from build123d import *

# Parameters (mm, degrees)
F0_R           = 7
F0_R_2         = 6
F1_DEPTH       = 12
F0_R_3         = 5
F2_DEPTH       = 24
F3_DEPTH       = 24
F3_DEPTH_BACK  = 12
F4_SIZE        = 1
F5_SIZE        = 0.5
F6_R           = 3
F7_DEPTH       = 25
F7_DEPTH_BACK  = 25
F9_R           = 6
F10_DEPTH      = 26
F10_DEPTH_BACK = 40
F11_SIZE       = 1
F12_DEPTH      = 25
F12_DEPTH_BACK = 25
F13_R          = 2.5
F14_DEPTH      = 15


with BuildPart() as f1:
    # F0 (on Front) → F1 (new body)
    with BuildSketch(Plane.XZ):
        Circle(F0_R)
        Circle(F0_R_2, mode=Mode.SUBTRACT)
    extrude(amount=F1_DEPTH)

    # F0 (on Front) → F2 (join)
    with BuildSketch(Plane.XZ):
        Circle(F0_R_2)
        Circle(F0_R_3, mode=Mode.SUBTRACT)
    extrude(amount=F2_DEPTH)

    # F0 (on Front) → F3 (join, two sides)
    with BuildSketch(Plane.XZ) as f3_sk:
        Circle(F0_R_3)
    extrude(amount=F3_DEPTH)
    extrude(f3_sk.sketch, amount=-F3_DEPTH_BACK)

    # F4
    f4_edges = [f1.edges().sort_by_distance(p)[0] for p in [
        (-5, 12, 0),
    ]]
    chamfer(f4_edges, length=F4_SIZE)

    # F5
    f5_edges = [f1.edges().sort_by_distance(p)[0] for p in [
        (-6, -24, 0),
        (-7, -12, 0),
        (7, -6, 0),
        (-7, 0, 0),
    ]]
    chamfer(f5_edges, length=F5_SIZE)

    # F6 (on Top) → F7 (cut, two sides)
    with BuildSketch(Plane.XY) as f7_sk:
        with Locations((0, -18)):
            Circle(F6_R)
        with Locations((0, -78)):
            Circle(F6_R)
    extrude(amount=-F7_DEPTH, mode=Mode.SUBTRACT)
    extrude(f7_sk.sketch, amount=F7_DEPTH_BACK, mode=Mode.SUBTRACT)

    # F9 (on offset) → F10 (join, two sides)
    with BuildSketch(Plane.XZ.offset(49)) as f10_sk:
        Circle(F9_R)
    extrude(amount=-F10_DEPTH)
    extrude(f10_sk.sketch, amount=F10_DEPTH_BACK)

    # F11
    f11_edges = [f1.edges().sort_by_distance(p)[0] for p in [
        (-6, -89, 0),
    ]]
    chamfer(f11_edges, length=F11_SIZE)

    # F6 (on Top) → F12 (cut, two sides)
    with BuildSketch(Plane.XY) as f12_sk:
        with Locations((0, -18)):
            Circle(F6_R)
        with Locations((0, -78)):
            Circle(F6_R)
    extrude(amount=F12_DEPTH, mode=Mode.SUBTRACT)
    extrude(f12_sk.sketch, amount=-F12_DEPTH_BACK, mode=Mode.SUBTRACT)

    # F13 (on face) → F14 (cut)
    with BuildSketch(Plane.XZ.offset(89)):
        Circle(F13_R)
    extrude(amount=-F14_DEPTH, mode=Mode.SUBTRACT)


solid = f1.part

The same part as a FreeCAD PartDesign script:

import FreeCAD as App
import Part
import Sketcher

V = App.Vector


def edges_at(feature, points):
    """Names of the edges that pass closest to the given points."""
    edges = feature.Shape.Edges
    near = lambda p: min(range(len(edges)), key=lambda i: edges[i].distToShape(Part.Vertex(*p))[0])
    return sorted({f"Edge{near(p) + 1}" for p in points})

doc = App.newDocument("Part")
params = doc.addObject("Spreadsheet::Sheet", "Params")
for row, (alias, value) in enumerate([
    ("sketch1_diameter", "14 mm"),
    ("sketch1_diameter2", "12 mm"),
    ("pad1_length", "12 mm"),
    ("sketch2_diameter", "12 mm"),
    ("sketch2_diameter2", "10 mm"),
    ("pad2_length", "24 mm"),
    ("sketch3_diameter", "10 mm"),
    ("pad3_length", "24 mm"),
    ("pad3_length2", "12 mm"),
    ("chamfer_size", "1 mm"),
    ("chamfer2_size", "0.5 mm"),
    ("sketch4_diameter", "6 mm"),
    ("sketch5_diameter", "12 mm"),
    ("pad4_length", "26 mm"),
    ("pad4_length2", "40 mm"),
    ("chamfer3_size", "1 mm"),
    ("sketch6_diameter", "6 mm"),
    ("sketch7_diameter", "5 mm"),
    ("pocket3_length", "15 mm"),
], start=1):
    params.set(f"A{row}", alias)
    params.set(f"B{row}", "=" + value)
    params.setAlias(f"B{row}", alias)

body = doc.addObject("PartDesign::Body", "Body")

sketch1 = body.newObject("Sketcher::SketchObject", "Sketch")
sketch1.AttachmentSupport = (doc.getObject("XZ_Plane"), [""])
sketch1.MapMode = "FlatFace"
sketch1.addGeometry([
    Part.Circle(V(0, 0, 0), V(0, 0, 1), 7),
    Part.Circle(V(0, 0, 0), V(0, 0, 1), 6),
], False)
sketch1.addConstraint([
    Sketcher.Constraint("Coincident", 0, 3, -1, 1),
    Sketcher.Constraint("Coincident", 1, 3, -1, 1),
    Sketcher.Constraint("Diameter", 0, 14.0),
    Sketcher.Constraint("Diameter", 1, 12.0),
])
sketch1.setExpression("Constraints[2]", "Params.sketch1_diameter")
sketch1.setExpression("Constraints[3]", "Params.sketch1_diameter2")
pad1 = body.newObject("PartDesign::Pad", "Pad")
pad1.Profile = sketch1
pad1.setExpression("Length", "Params.pad1_length")

sketch2 = body.newObject("Sketcher::SketchObject", "Sketch001")
sketch2.AttachmentSupport = (doc.getObject("XZ_Plane"), [""])
sketch2.MapMode = "FlatFace"
sketch2.addGeometry([
    Part.Circle(V(0, 0, 0), V(0, 0, 1), 6),
    Part.Circle(V(0, 0, 0), V(0, 0, 1), 5),
], False)
sketch2.addConstraint([
    Sketcher.Constraint("Coincident", 0, 3, -1, 1),
    Sketcher.Constraint("Coincident", 1, 3, -1, 1),
    Sketcher.Constraint("Diameter", 0, 12.0),
    Sketcher.Constraint("Diameter", 1, 10.0),
])
sketch2.setExpression("Constraints[2]", "Params.sketch2_diameter")
sketch2.setExpression("Constraints[3]", "Params.sketch2_diameter2")
pad2 = body.newObject("PartDesign::Pad", "Pad001")
pad2.Profile = sketch2
pad2.setExpression("Length", "Params.pad2_length")

sketch3 = body.newObject("Sketcher::SketchObject", "Sketch002")
sketch3.AttachmentSupport = (doc.getObject("XZ_Plane"), [""])
sketch3.MapMode = "FlatFace"
sketch3.addGeometry(Part.Circle(V(0, 0, 0), V(0, 0, 1), 5), False)
sketch3.addConstraint([
    Sketcher.Constraint("Coincident", 0, 3, -1, 1),
    Sketcher.Constraint("Diameter", 0, 10.0),
])
sketch3.setExpression("Constraints[1]", "Params.sketch3_diameter")
pad3 = body.newObject("PartDesign::Pad", "Pad002")
pad3.Profile = sketch3
pad3.Type = "TwoLengths"
pad3.setExpression("Length", "Params.pad3_length")
pad3.setExpression("Length2", "Params.pad3_length2")
doc.recompute()

chamfer = body.newObject("PartDesign::Chamfer", "Chamfer")
chamfer.Base = (pad3, edges_at(pad3, [(-5, 12, 0)]))
chamfer.setExpression("Size", "Params.chamfer_size")
doc.recompute()

chamfer2 = body.newObject("PartDesign::Chamfer", "Chamfer001")
chamfer2.Base = (chamfer, edges_at(chamfer, [
    (-6, -24, 0),
    (-7, -12, 0),
    (7, -6, 0),
    (-7, 0, 0),
]))
chamfer2.setExpression("Size", "Params.chamfer2_size")

sketch4 = body.newObject("Sketcher::SketchObject", "Sketch003")
sketch4.AttachmentSupport = (doc.getObject("XY_Plane"), [""])
sketch4.MapMode = "FlatFace"
sketch4.addGeometry([
    Part.Circle(V(0, -18, 0), V(0, 0, 1), 3),
    Part.Circle(V(0, -78, 0), V(0, 0, 1), 3),
], False)
sketch4.addConstraint([
    Sketcher.Constraint("Equal", 0, 1),
    Sketcher.Constraint("PointOnObject", 0, 3, -2),
    Sketcher.Constraint("PointOnObject", 1, 3, -2),
    Sketcher.Constraint("Diameter", 0, 6.0),
    Sketcher.Constraint("DistanceY", 0, 3, -1, 1, 18.0),
    Sketcher.Constraint("DistanceY", 1, 3, -1, 1, 78.0),
])
sketch4.setExpression("Constraints[3]", "Params.sketch4_diameter")
pocket1 = body.newObject("PartDesign::Pocket", "Pocket")
pocket1.Profile = sketch4
pocket1.Type = "ThroughAll"
pocket1.Midplane = True

sketch5 = body.newObject("Sketcher::SketchObject", "Sketch004")
sketch5.AttachmentSupport = (doc.getObject("XZ_Plane"), [""])
sketch5.MapMode = "FlatFace"
sketch5.AttachmentOffset = App.Placement(V(0, 0, 49), App.Rotation())
sketch5.addGeometry(Part.Circle(V(0, 0, 0), V(0, 0, 1), 6), False)
sketch5.addConstraint([
    Sketcher.Constraint("Coincident", 0, 3, -1, 1),
    Sketcher.Constraint("Diameter", 0, 12.0),
])
sketch5.setExpression("Constraints[1]", "Params.sketch5_diameter")
pad4 = body.newObject("PartDesign::Pad", "Pad003")
pad4.Profile = sketch5
pad4.Type = "TwoLengths"
pad4.setExpression("Length", "Params.pad4_length")
pad4.setExpression("Length2", "Params.pad4_length2")
pad4.Reversed = True
doc.recompute()

chamfer3 = body.newObject("PartDesign::Chamfer", "Chamfer002")
chamfer3.Base = (pad4, edges_at(pad4, [(-6, -89, 0)]))
chamfer3.setExpression("Size", "Params.chamfer3_size")

sketch6 = body.newObject("Sketcher::SketchObject", "Sketch005")
sketch6.AttachmentSupport = (doc.getObject("XY_Plane"), [""])
sketch6.MapMode = "FlatFace"
sketch6.addGeometry([
    Part.Circle(V(0, -18, 0), V(0, 0, 1), 3),
    Part.Circle(V(0, -78, 0), V(0, 0, 1), 3),
], False)
sketch6.addConstraint([
    Sketcher.Constraint("Equal", 0, 1),
    Sketcher.Constraint("PointOnObject", 0, 3, -2),
    Sketcher.Constraint("PointOnObject", 1, 3, -2),
    Sketcher.Constraint("Diameter", 0, 6.0),
    Sketcher.Constraint("DistanceY", 0, 3, -1, 1, 18.0),
    Sketcher.Constraint("DistanceY", 1, 3, -1, 1, 78.0),
])
sketch6.setExpression("Constraints[3]", "Params.sketch6_diameter")
pocket2 = body.newObject("PartDesign::Pocket", "Pocket001")
pocket2.Profile = sketch6
pocket2.Type = "ThroughAll"
pocket2.Midplane = True

sketch7 = body.newObject("Sketcher::SketchObject", "Sketch006")
sketch7.AttachmentSupport = (doc.getObject("XZ_Plane"), [""])
sketch7.MapMode = "FlatFace"
sketch7.AttachmentOffset = App.Placement(V(0, 0, 89), App.Rotation())
sketch7.addGeometry(Part.Circle(V(0, 0, 0), V(0, 0, 1), 2.5), False)
sketch7.addConstraint([
    Sketcher.Constraint("Coincident", 0, 3, -1, 1),
    Sketcher.Constraint("Diameter", 0, 5.0),
])
sketch7.setExpression("Constraints[1]", "Params.sketch7_diameter")
pocket3 = body.newObject("PartDesign::Pocket", "Pocket002")
pocket3.Profile = sketch7
pocket3.setExpression("Length", "Params.pocket3_length")

doc.recompute()
